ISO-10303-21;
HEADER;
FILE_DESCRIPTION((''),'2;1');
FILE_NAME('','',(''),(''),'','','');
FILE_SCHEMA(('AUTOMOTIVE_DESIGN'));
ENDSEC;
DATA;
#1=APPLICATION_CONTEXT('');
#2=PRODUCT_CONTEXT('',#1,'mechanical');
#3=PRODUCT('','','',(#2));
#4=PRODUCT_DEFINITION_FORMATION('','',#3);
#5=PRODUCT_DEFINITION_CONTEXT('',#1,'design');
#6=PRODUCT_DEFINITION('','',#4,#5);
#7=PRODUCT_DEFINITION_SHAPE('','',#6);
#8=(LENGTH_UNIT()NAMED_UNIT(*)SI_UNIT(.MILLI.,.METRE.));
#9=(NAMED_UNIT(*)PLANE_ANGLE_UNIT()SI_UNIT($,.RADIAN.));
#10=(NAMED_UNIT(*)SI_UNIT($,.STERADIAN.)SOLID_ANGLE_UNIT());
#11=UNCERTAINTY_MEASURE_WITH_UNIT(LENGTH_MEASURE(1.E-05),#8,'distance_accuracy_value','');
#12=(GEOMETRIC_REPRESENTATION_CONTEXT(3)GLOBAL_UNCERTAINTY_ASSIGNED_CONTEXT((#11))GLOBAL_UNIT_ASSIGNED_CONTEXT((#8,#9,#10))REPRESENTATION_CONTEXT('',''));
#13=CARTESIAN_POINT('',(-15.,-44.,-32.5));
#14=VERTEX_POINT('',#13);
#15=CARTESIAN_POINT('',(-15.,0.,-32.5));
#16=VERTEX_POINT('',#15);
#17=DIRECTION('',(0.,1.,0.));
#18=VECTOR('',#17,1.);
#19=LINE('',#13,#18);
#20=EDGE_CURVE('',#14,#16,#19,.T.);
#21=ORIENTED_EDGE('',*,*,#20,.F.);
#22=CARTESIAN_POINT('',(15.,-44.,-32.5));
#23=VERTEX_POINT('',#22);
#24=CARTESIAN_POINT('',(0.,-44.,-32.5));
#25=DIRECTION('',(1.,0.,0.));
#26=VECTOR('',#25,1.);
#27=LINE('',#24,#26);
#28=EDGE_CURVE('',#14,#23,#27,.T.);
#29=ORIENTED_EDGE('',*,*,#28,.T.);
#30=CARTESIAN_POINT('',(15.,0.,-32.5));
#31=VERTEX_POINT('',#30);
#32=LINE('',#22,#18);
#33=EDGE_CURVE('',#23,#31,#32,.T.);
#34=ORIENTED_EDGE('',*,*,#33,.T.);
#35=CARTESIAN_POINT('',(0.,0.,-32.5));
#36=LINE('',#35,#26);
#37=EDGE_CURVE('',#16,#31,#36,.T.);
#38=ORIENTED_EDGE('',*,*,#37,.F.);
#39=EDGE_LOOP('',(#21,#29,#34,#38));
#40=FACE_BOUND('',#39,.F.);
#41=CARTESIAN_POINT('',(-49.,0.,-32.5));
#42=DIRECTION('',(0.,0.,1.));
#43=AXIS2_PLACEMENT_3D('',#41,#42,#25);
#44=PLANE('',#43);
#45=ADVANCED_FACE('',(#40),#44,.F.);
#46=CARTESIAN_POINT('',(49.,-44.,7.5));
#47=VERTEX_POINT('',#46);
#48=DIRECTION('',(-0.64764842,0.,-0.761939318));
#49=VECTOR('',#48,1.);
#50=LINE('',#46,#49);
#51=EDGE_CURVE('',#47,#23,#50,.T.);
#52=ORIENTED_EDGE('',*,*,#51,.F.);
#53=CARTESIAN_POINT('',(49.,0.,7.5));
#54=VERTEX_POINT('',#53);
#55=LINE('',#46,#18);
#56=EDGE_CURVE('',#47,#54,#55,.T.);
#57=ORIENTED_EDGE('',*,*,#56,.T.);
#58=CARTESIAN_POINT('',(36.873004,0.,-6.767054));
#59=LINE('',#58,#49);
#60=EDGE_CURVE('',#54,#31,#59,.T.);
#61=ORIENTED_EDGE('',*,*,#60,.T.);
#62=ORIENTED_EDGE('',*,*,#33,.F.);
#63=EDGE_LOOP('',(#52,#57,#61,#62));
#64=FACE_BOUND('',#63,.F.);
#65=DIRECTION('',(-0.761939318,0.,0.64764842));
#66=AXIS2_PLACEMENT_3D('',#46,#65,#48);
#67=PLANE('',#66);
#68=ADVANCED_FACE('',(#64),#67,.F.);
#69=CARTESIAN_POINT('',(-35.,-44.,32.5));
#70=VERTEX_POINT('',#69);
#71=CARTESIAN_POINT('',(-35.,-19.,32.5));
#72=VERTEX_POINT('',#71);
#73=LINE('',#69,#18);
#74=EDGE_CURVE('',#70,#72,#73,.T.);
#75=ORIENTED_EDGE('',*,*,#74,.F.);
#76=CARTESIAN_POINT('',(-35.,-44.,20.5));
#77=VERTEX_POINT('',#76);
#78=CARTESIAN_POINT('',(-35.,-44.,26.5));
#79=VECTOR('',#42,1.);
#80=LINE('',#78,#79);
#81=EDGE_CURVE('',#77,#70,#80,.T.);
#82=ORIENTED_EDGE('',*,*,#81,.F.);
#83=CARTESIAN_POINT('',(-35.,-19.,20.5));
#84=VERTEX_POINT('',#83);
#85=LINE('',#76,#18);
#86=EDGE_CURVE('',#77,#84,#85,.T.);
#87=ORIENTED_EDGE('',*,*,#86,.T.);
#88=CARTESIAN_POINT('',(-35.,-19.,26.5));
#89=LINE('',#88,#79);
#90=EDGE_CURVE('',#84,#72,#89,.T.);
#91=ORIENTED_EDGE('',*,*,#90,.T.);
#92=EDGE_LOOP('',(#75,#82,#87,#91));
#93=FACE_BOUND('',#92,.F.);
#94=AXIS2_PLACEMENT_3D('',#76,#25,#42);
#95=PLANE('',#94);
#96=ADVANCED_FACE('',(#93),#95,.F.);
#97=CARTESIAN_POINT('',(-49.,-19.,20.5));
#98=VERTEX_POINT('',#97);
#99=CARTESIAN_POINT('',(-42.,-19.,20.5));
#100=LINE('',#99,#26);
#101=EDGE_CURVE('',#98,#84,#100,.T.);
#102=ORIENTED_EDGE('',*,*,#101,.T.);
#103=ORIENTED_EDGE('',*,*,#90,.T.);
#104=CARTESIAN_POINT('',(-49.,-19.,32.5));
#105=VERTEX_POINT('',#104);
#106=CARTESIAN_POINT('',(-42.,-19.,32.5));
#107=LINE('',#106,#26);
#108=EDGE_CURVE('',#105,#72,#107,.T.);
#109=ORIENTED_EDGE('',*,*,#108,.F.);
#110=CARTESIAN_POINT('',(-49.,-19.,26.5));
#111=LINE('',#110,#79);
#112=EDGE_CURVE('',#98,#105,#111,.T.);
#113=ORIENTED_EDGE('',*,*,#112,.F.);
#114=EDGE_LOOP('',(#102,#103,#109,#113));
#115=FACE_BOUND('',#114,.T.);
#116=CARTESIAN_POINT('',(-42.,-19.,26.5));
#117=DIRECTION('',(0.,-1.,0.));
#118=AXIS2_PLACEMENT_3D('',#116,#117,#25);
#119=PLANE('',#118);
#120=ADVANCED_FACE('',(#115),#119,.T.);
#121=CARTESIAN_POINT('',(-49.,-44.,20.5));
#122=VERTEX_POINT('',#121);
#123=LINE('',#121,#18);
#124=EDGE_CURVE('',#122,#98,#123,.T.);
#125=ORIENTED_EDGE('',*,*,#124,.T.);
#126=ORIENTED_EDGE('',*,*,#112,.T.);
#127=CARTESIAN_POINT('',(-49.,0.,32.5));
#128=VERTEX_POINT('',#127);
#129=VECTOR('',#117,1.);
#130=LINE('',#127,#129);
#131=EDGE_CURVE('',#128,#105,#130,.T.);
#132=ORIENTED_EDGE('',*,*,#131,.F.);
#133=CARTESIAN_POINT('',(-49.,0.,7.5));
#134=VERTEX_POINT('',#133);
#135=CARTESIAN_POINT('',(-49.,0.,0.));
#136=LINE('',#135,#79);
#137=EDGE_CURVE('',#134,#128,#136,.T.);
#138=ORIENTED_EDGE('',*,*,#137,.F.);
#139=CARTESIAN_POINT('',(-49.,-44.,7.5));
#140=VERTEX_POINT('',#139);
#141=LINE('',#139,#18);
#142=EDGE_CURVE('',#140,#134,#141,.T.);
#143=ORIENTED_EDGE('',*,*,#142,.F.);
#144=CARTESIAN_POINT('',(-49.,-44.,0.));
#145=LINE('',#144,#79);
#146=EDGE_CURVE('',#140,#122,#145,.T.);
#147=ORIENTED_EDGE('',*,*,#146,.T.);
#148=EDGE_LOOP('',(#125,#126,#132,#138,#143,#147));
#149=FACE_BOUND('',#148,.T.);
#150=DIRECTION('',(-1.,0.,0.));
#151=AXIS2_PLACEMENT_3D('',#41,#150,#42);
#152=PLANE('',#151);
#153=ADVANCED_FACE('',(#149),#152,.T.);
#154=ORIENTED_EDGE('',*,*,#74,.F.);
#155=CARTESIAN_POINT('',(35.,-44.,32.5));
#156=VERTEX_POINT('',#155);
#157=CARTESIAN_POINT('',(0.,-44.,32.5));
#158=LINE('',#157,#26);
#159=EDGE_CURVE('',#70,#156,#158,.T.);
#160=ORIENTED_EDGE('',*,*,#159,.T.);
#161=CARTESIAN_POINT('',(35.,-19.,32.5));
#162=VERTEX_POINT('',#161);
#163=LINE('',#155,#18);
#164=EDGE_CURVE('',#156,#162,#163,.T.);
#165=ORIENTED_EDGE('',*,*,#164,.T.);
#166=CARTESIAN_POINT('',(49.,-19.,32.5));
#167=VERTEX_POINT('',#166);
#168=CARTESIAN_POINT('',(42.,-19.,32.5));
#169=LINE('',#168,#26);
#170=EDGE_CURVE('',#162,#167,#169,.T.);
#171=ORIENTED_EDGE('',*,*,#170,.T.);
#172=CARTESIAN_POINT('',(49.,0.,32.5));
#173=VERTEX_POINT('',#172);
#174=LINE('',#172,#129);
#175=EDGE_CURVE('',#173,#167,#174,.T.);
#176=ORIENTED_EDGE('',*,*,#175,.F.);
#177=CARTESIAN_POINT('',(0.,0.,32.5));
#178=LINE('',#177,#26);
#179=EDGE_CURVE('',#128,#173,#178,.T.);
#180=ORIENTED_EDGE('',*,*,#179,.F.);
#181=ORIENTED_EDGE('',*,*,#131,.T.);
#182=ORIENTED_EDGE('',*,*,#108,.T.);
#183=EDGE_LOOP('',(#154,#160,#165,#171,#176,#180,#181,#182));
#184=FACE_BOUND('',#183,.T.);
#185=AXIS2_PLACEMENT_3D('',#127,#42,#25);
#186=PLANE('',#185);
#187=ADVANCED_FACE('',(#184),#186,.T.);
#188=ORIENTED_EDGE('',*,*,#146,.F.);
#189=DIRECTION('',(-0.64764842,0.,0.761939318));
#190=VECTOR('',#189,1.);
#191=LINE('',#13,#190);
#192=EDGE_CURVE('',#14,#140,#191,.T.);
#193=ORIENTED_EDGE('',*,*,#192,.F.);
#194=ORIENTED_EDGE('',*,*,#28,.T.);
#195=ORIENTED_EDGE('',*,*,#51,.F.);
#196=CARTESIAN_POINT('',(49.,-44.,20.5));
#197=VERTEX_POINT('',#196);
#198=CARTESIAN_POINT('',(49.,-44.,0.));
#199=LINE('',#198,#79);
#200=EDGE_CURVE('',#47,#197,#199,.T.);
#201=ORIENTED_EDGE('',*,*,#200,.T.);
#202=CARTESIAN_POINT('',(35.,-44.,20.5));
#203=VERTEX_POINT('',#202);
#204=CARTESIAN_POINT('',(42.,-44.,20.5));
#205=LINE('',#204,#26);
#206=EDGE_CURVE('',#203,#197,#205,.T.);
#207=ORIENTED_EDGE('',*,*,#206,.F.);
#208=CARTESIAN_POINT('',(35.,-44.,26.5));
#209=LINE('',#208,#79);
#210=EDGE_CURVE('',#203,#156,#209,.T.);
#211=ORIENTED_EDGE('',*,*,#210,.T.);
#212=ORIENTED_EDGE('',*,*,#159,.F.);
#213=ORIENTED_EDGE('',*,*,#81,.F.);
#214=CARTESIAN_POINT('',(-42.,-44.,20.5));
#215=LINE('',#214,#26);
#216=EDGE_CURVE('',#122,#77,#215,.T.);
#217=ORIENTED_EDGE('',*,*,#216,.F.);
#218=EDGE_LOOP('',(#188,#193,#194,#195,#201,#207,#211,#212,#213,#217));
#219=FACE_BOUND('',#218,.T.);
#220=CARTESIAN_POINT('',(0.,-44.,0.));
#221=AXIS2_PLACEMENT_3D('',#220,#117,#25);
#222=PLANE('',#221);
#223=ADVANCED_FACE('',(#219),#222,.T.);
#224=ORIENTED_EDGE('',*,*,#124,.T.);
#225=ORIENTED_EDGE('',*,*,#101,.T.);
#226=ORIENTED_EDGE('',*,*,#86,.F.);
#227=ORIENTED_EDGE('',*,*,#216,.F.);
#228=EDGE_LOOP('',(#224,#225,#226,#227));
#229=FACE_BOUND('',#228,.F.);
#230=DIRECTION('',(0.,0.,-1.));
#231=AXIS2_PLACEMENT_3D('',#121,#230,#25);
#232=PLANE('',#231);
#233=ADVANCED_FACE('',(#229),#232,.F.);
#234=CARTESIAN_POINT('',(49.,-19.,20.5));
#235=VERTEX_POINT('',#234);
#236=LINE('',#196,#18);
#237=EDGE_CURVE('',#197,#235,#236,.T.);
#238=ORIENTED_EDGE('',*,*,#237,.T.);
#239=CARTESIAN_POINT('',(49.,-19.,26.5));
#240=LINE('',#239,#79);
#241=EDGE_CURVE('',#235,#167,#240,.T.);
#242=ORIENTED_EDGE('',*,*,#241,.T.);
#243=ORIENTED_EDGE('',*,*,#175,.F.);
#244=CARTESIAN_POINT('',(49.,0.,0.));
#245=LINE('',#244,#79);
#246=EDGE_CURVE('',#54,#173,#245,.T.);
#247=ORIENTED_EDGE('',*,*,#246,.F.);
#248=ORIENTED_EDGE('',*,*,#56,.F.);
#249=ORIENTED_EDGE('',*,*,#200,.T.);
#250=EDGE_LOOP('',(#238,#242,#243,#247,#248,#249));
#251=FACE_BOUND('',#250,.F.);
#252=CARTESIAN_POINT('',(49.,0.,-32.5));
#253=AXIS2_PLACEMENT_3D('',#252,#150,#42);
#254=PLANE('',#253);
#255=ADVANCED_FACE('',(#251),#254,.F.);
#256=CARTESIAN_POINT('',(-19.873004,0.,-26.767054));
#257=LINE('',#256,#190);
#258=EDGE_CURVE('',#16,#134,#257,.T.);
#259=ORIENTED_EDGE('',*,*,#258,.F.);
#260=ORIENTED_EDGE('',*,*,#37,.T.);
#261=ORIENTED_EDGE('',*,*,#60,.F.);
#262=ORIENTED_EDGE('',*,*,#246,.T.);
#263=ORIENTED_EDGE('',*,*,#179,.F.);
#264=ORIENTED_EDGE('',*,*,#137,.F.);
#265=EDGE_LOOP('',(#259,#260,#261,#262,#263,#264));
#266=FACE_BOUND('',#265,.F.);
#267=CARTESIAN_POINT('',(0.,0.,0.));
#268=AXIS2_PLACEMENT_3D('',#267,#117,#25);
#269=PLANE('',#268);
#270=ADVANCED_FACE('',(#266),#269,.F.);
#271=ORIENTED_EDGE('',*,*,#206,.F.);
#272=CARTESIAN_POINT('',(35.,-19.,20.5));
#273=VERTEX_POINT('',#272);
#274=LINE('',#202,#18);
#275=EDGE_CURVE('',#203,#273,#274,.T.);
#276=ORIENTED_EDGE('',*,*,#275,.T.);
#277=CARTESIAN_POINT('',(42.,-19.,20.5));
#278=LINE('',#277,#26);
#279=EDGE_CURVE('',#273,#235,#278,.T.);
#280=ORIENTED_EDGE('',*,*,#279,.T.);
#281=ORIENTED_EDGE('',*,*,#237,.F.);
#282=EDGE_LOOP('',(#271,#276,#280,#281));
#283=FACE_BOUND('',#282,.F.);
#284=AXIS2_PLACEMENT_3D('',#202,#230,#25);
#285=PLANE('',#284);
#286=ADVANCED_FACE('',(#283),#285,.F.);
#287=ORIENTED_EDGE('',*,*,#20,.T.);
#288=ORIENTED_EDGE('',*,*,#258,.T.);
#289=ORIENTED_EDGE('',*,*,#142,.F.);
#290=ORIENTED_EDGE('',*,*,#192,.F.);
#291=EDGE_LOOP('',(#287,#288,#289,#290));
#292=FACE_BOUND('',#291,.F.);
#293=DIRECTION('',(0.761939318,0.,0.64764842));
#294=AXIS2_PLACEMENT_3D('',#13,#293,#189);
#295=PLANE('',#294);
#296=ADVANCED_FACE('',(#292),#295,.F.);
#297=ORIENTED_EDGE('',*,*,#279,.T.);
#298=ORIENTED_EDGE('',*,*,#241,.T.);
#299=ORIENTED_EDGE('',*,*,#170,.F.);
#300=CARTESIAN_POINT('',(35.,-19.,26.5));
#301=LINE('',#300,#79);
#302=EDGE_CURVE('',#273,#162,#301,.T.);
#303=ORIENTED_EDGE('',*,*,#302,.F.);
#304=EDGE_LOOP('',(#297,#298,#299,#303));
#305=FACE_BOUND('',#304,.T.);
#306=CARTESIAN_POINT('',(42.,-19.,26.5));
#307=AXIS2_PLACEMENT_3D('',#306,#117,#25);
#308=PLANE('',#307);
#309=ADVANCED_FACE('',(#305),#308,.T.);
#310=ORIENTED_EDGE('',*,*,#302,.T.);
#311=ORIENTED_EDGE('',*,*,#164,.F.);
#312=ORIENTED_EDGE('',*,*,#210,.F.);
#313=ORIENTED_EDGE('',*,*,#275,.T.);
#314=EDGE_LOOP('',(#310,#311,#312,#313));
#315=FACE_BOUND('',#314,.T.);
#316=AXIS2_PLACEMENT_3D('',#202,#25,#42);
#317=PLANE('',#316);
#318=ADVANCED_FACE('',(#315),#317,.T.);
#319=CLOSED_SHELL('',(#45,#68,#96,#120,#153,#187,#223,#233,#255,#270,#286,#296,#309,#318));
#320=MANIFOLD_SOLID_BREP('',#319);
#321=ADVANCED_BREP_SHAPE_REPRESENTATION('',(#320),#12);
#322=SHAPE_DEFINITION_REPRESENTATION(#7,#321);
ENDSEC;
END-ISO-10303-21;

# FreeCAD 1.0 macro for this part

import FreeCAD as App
import Part
import Sketcher

V = App.Vector
Q = App.Units.Quantity

doc = App.newDocument("Part")
params = doc.addObject("Spreadsheet::Sheet", "Params")
for row, (alias, value) in enumerate([
    ("sketch1_width", "98 mm"),
    ("sketch1_height", "65 mm"),
    ("pad1_length", "44 mm"),
    ("sketch2_width", "14 mm"),
    ("sketch2_height", "12 mm"),
    ("pocket1_length", "25 mm"),
    ("sketch3_width", "34 mm"),
    ("sketch3_height", "40 mm"),
], start=1):
    params.set(f"A{row}", alias)
    params.set(f"B{row}", "=" + value)
    params.setAlias(f"B{row}", alias)

body = doc.addObject("PartDesign::Body", "Body")

# Sketch on XZ plane
sketch1 = doc.addObject("Sketcher::SketchObject", "Sketch")
body.addObject(sketch1)
sketch1.AttachmentSupport = (doc.XZ_Plane, [""])
sketch1.MapMode = "FlatFace"
sketch1.addGeometry([
    Part.LineSegment(V(-49, 32, 0), V(-49, -32, 0)),
    Part.LineSegment(V(-49, -32, 0), V(49, -32, 0)),
    Part.LineSegment(V(49, -32, 0), V(49, 32, 0)),
    Part.LineSegment(V(49, 32, 0), V(-49, 32, 0)),
], False)
sketch1.addConstraint([
    Sketcher.Constraint("Coincident", 0, 2, 1, 1),
    Sketcher.Constraint("Coincident", 1, 2, 2, 1),
    Sketcher.Constraint("Coincident", 2, 2, 3, 1),
    Sketcher.Constraint("Coincident", 3, 2, 0, 1),
    Sketcher.Constraint("Vertical", 0),
    Sketcher.Constraint("Horizontal", 1),
    Sketcher.Constraint("Vertical", 2),
    Sketcher.Constraint("Horizontal", 3),
    Sketcher.Constraint("Symmetric", 0, 2, 2, 2, -1, 1),
    Sketcher.Constraint("DistanceX", 1, 1, 1, 2, Q("98 mm")),
    Sketcher.Constraint("DistanceY", 0, 2, 0, 1, Q("65 mm")),
])
sketch1.setExpression("Constraints[9]", "Params.sketch1_width")
sketch1.setExpression("Constraints[10]", "Params.sketch1_height")
pad1 = doc.addObject("PartDesign::Pad", "Pad")
body.addObject(pad1)
pad1.Profile = sketch1
pad1.setExpression("Length", "Params.pad1_length")

# Sketch on XZ plane
sketch2 = doc.addObject("Sketcher::SketchObject", "Sketch001")
body.addObject(sketch2)
sketch2.AttachmentSupport = (doc.XZ_Plane, [""])
sketch2.MapMode = "FlatFace"
sketch2.AttachmentOffset = App.Placement(V(0, 0, 44), App.Rotation())
sketch2.addGeometry([
    Part.LineSegment(V(-49, 32, 0), V(-49, 20, 0)),  # 0
    Part.LineSegment(V(-49, 20, 0), V(-35, 20, 0)),  # 1
    Part.LineSegment(V(-35, 20, 0), V(-35, 32, 0)),  # 2
    Part.LineSegment(V(-35, 32, 0), V(-49, 32, 0)),  # 3
    Part.LineSegment(V(35, 32, 0), V(35, 20, 0)),  # 4
    Part.LineSegment(V(35, 20, 0), V(49, 20, 0)),  # 5
    Part.LineSegment(V(49, 20, 0), V(49, 32, 0)),  # 6
    Part.LineSegment(V(49, 32, 0), V(35, 32, 0)),  # 7
], False)
sketch2.addConstraint([
    Sketcher.Constraint("Coincident", 0, 2, 1, 1),
    Sketcher.Constraint("Coincident", 1, 2, 2, 1),
    Sketcher.Constraint("Coincident", 2, 2, 3, 1),
    Sketcher.Constraint("Coincident", 3, 2, 0, 1),
    Sketcher.Constraint("Coincident", 4, 2, 5, 1),
    Sketcher.Constraint("Coincident", 5, 2, 6, 1),
    Sketcher.Constraint("Coincident", 6, 2, 7, 1),
    Sketcher.Constraint("Coincident", 7, 2, 4, 1),
    Sketcher.Constraint("Vertical", 0),
    Sketcher.Constraint("Horizontal", 1),
    Sketcher.Constraint("Vertical", 2),
    Sketcher.Constraint("Horizontal", 3),
    Sketcher.Constraint("Vertical", 4),
    Sketcher.Constraint("Horizontal", 5),
    Sketcher.Constraint("Vertical", 6),
    Sketcher.Constraint("Horizontal", 7),
    Sketcher.Constraint("Symmetric", 1, 2, 4, 2, -2),
    Sketcher.Constraint("Symmetric", 3, 2, 6, 2, -2),
    Sketcher.Constraint("DistanceX", 1, 1, 1, 2, Q("14 mm")),
    Sketcher.Constraint("DistanceY", 0, 2, 0, 1, Q("12 mm")),
    Sketcher.Constraint("DistanceX", 0, 2, -1, 1, Q("49 mm")),
    Sketcher.Constraint("DistanceY", -1, 1, 0, 2, Q("20.5 mm")),
])
sketch2.setExpression("Constraints[18]", "Params.sketch2_width")
sketch2.setExpression("Constraints[19]", "Params.sketch2_height")
pocket1 = doc.addObject("PartDesign::Pocket", "Pocket")
body.addObject(pocket1)
pocket1.Profile = sketch2
pocket1.setExpression("Length", "Params.pocket1_length")

# Sketch on XZ plane
sketch3 = doc.addObject("Sketcher::SketchObject", "Sketch002")
body.addObject(sketch3)
sketch3.AttachmentSupport = (doc.XZ_Plane, [""])
sketch3.MapMode = "FlatFace"
sketch3.AttachmentOffset = App.Placement(V(0, 0, 44), App.Rotation())
sketch3.addGeometry([
    Part.LineSegment(V(49, 8, 0), V(15, -32, 0)),  # 0
    Part.LineSegment(V(15, -32, 0), V(49, -32, 0)),  # 1
    Part.LineSegment(V(49, -32, 0), V(49, 8, 0)),  # 2
    Part.LineSegment(V(-15, -32, 0), V(-49, 8, 0)),  # 3
    Part.LineSegment(V(-49, 8, 0), V(-49, -32, 0)),  # 4
    Part.LineSegment(V(-49, -32, 0), V(-15, -32, 0)),  # 5
], False)
sketch3.addConstraint([
    Sketcher.Constraint("Coincident", 0, 2, 1, 1),
    Sketcher.Constraint("Coincident", 1, 2, 2, 1),
    Sketcher.Constraint("Coincident", 2, 2, 0, 1),
    Sketcher.Constraint("Coincident", 3, 2, 4, 1),
    Sketcher.Constraint("Coincident", 4, 2, 5, 1),
    Sketcher.Constraint("Coincident", 5, 2, 3, 1),
    Sketcher.Constraint("Horizontal", 1),
    Sketcher.Constraint("Vertical", 2),
    Sketcher.Constraint("Vertical", 4),
    Sketcher.Constraint("Horizontal", 5),
    Sketcher.Constraint("Symmetric", 2, 2, 3, 2, -2),
    Sketcher.Constraint("Symmetric", 0, 2, 5, 2, -2),
    Sketcher.Constraint("DistanceX", 1, 1, 1, 2, Q("34 mm")),
    Sketcher.Constraint("DistanceY", 2, 1, 2, 2, Q("40 mm")),
    Sketcher.Constraint("DistanceX", -1, 1, 0, 2, Q("15 mm")),
    Sketcher.Constraint("DistanceY", 0, 2, -1, 1, Q("32.5 mm")),
])
sketch3.setExpression("Constraints[12]", "Params.sketch3_width")
sketch3.setExpression("Constraints[13]", "Params.sketch3_height")
pocket2 = doc.addObject("PartDesign::Pocket", "Pocket001")
body.addObject(pocket2)
pocket2.Profile = sketch3
pocket2.Type = "ThroughAll"

doc.recompute()
